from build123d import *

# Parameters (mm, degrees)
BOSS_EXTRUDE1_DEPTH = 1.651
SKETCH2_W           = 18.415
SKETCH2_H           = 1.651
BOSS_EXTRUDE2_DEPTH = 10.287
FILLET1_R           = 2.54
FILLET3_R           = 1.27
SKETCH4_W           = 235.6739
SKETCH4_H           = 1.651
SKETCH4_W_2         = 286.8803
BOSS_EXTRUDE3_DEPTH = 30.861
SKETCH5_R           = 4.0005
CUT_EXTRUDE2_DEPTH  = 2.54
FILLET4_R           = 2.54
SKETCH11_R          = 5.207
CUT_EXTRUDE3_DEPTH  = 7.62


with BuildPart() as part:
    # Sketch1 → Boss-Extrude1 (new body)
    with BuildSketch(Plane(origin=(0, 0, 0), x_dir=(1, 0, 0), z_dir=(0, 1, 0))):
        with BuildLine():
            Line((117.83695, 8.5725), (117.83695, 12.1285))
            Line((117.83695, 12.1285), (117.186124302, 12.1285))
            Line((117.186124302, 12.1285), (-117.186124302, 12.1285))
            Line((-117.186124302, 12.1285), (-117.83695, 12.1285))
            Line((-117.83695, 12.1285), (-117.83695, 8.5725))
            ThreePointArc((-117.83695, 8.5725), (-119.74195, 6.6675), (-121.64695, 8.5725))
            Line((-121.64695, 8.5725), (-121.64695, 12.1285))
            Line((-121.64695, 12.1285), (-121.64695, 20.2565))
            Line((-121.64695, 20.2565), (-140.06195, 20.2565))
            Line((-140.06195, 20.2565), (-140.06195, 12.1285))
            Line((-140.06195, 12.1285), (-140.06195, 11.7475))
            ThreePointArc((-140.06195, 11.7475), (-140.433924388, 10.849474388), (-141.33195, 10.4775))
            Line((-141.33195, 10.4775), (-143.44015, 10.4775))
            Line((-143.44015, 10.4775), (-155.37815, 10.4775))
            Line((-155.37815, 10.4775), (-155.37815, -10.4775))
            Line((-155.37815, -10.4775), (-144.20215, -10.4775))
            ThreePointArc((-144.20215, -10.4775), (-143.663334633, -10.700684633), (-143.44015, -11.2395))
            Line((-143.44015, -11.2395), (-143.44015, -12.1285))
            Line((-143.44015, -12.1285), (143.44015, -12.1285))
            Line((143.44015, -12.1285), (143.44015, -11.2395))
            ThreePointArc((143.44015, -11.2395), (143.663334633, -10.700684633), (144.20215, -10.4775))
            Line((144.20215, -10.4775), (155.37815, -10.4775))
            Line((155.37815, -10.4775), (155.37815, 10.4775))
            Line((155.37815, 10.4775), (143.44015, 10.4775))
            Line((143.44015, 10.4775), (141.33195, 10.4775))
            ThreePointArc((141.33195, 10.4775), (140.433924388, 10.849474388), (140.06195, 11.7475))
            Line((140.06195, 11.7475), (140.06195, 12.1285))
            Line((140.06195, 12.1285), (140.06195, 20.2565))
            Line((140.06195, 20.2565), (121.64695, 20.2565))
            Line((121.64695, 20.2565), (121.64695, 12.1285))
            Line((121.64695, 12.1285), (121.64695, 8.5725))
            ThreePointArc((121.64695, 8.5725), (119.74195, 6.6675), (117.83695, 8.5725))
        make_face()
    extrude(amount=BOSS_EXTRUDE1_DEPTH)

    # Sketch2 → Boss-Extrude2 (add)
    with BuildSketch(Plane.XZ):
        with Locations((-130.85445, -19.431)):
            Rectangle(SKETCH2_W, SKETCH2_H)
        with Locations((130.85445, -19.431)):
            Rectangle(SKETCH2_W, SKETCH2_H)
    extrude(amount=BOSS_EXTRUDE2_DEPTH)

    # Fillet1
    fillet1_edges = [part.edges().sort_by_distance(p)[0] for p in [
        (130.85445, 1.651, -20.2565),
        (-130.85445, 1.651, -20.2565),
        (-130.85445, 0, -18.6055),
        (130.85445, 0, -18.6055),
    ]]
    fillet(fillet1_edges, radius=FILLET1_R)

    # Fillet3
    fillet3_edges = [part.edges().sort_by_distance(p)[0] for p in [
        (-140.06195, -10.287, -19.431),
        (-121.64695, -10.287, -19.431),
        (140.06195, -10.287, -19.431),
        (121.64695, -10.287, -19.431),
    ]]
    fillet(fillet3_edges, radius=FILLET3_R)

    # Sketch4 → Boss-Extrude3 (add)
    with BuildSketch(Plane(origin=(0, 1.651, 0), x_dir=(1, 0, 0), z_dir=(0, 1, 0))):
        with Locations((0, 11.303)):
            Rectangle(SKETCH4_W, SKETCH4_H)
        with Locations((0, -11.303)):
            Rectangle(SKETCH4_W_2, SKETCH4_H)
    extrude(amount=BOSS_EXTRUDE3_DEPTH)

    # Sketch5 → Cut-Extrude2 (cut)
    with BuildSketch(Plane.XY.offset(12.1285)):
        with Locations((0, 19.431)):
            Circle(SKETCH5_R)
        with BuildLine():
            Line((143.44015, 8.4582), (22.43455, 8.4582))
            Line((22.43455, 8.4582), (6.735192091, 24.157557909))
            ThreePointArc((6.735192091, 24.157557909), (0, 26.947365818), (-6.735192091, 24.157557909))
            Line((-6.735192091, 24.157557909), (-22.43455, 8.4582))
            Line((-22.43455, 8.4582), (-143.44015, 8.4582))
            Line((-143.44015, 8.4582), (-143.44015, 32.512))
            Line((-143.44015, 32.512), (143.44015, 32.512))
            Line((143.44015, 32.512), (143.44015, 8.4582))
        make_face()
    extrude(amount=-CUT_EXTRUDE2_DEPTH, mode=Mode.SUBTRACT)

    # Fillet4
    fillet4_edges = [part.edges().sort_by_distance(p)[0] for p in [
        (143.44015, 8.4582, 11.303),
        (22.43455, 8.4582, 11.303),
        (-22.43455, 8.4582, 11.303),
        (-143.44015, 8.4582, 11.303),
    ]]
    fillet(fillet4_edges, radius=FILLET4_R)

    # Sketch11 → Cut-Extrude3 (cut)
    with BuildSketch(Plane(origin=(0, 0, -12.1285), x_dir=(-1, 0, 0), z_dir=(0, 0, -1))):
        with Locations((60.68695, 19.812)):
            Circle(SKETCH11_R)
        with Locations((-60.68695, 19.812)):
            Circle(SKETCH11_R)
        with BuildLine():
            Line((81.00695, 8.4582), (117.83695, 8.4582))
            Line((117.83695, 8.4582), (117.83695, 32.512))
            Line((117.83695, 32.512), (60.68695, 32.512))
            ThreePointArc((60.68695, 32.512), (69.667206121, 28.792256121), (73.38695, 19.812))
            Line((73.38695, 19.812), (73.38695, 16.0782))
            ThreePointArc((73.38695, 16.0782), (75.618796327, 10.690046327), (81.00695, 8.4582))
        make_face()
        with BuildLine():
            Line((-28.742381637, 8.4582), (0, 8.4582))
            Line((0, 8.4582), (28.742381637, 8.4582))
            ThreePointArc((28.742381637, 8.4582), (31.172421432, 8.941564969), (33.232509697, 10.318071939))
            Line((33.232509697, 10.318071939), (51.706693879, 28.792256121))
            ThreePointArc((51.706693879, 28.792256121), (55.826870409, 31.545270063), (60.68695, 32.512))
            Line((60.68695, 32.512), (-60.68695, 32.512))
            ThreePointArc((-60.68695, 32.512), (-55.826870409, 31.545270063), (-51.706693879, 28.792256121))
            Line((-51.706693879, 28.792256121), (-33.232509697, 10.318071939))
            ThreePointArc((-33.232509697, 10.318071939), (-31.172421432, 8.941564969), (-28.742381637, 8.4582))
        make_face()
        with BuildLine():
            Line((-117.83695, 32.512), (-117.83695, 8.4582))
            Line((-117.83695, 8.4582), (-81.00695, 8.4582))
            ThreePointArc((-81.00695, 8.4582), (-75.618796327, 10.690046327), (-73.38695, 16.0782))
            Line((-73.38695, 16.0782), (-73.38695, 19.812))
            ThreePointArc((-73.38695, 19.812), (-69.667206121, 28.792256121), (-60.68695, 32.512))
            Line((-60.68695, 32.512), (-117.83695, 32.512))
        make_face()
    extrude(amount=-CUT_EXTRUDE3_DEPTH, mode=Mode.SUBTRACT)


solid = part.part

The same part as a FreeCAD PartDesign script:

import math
import FreeCAD as App
import Part
import Sketcher
from FreeCAD import Vector
Q = App.Units.Quantity


def edges_at(feature, points):
    """Names of the edges that pass closest to the given points."""
    edges = feature.Shape.Edges
    near = lambda p: min(range(len(edges)), key=lambda i: edges[i].distToShape(Part.Vertex(*p))[0])
    return sorted({f"Edge{near(p) + 1}" for p in points})


def add_polygon(sketch, points):
    """Adds a closed chain of lines whose ends are joined by coincident constraints."""
    first, n = sketch.GeometryCount, len(points)
    for a, b in zip(points, points[1:] + points[:1]):
        sketch.addGeometry(Part.LineSegment(App.Vector(*a, 0), App.Vector(*b, 0)), False)
    for i in range(n):
        sketch.addConstraint(Sketcher.Constraint("Coincident", first + i, 2, first + (i + 1) % n, 1))

doc = App.newDocument("Part")
body = doc.addObject("PartDesign::Body", "Body")

sketch1 = body.newObject("Sketcher::SketchObject", "Sketch")
sketch1.AttachmentSupport = (doc.getObject("XZ_Plane"), [""])
sketch1.MapMode = "FlatFace"
sketch1.addGeometry([
    Part.LineSegment(Vector(117.83695, -8.5725, 0), Vector(117.83695, -12.1285, 0)),
    Part.LineSegment(Vector(117.83695, -12.1285, 0), Vector(-117.83695, -12.1285, 0)),
    Part.LineSegment(Vector(-117.83695, -12.1285, 0), Vector(-117.83695, -8.5725, 0)),
    Part.ArcOfCircle(Part.Circle(Vector(-119.74195, -8.5725, 0), Vector(0, 0, 1), 1.905), math.radians(0), math.radians(180)),
    Part.LineSegment(Vector(-121.64695, -8.5725, 0), Vector(-121.64695, -20.2565, 0)),
    Part.LineSegment(Vector(-121.64695, -20.2565, 0), Vector(-140.06195, -20.2565, 0)),
    Part.LineSegment(Vector(-140.06195, -20.2565, 0), Vector(-140.06195, -11.7475, 0)),
    Part.ArcOfCircle(Part.Circle(Vector(-141.33195, -11.7475, 0), Vector(0, 0, 1), 1.27), math.radians(0), math.radians(90)),
    Part.LineSegment(Vector(-141.33195, -10.4775, 0), Vector(-155.37815, -10.4775, 0)),
    Part.LineSegment(Vector(-155.37815, -10.4775, 0), Vector(-155.37815, 10.4775, 0)),
    Part.LineSegment(Vector(-155.37815, 10.4775, 0), Vector(-144.20215, 10.4775, 0)),
    Part.ArcOfCircle(Part.Circle(Vector(-144.20215, 11.2395, 0), Vector(0, 0, 1), 0.762), math.radians(-90), math.radians(0)),
    Part.LineSegment(Vector(-143.44015, 11.2395, 0), Vector(-143.44015, 12.1285, 0)),
    Part.LineSegment(Vector(-143.44015, 12.1285, 0), Vector(143.44015, 12.1285, 0)),
    Part.LineSegment(Vector(143.44015, 12.1285, 0), Vector(143.44015, 11.2395, 0)),
    Part.ArcOfCircle(Part.Circle(Vector(144.20215, 11.2395, 0), Vector(0, 0, 1), 0.762), math.radians(-180), math.radians(-90)),
    Part.LineSegment(Vector(144.20215, 10.4775, 0), Vector(155.37815, 10.4775, 0)),
    Part.LineSegment(Vector(155.37815, 10.4775, 0), Vector(155.37815, -10.4775, 0)),
    Part.LineSegment(Vector(155.37815, -10.4775, 0), Vector(141.33195, -10.4775, 0)),
    Part.ArcOfCircle(Part.Circle(Vector(141.33195, -11.7475, 0), Vector(0, 0, 1), 1.27), math.radians(90), math.radians(180)),
    Part.LineSegment(Vector(140.06195, -11.7475, 0), Vector(140.06195, -20.2565, 0)),
    Part.LineSegment(Vector(140.06195, -20.2565, 0), Vector(121.64695, -20.2565, 0)),
    Part.LineSegment(Vector(121.64695, -20.2565, 0), Vector(121.64695, -8.5725, 0)),
    Part.ArcOfCircle(Part.Circle(Vector(119.74195, -8.5725, 0), Vector(0, 0, 1), 1.905), math.radians(0), math.radians(180)),
], False)
sketch1.addConstraint([
    Sketcher.Constraint("Coincident", 0, 2, 1, 1),
    Sketcher.Constraint("Coincident", 1, 2, 2, 1),
    Sketcher.Constraint("Tangent", 2, 2, 3, 1),
    Sketcher.Constraint("Tangent", 3, 2, 4, 1),
    Sketcher.Constraint("Coincident", 4, 2, 5, 1),
    Sketcher.Constraint("Coincident", 5, 2, 6, 1),
    Sketcher.Constraint("Tangent", 6, 2, 7, 1),
    Sketcher.Constraint("Tangent", 7, 2, 8, 1),
    Sketcher.Constraint("Coincident", 8, 2, 9, 1),
    Sketcher.Constraint("Coincident", 9, 2, 10, 1),
    Sketcher.Constraint("Tangent", 10, 2, 11, 1),
    Sketcher.Constraint("Tangent", 11, 2, 12, 1),
    Sketcher.Constraint("Coincident", 12, 2, 13, 1),
    Sketcher.Constraint("Coincident", 13, 2, 14, 1),
    Sketcher.Constraint("Tangent", 14, 2, 15, 1),
    Sketcher.Constraint("Tangent", 15, 2, 16, 1),
    Sketcher.Constraint("Coincident", 16, 2, 17, 1),
    Sketcher.Constraint("Coincident", 17, 2, 18, 1),
    Sketcher.Constraint("Tangent", 18, 2, 19, 1),
    Sketcher.Constraint("Tangent", 19, 2, 20, 1),
    Sketcher.Constraint("Coincident", 20, 2, 21, 1),
    Sketcher.Constraint("Coincident", 21, 2, 22, 1),
    Sketcher.Constraint("Tangent", 22, 2, 23, 1),
    Sketcher.Constraint("Tangent", 23, 2, 0, 1),
    Sketcher.Constraint("Vertical", 0),
    Sketcher.Constraint("Horizontal", 1),
    Sketcher.Constraint("Vertical", 2),
    Sketcher.Constraint("Vertical", 4),
    Sketcher.Constraint("Horizontal", 5),
    Sketcher.Constraint("Vertical", 6),
    Sketcher.Constraint("Horizontal", 8),
    Sketcher.Constraint("Vertical", 9),
    Sketcher.Constraint("Horizontal", 10),
    Sketcher.Constraint("Vertical", 12),
    Sketcher.Constraint("Horizontal", 13),
    Sketcher.Constraint("Vertical", 14),
    Sketcher.Constraint("Horizontal", 16),
    Sketcher.Constraint("Vertical", 17),
    Sketcher.Constraint("Horizontal", 18),
    Sketcher.Constraint("Vertical", 20),
    Sketcher.Constraint("Horizontal", 21),
    Sketcher.Constraint("Vertical", 22),
    Sketcher.Constraint("Equal", 11, 15),
    Sketcher.Constraint("Equal", 7, 19),
    Sketcher.Constraint("Equal", 3, 23),
    Sketcher.Constraint("Symmetric", 8, 2, 16, 2, -1, 1),
    Sketcher.Constraint("Symmetric", 11, 3, 15, 3, -2),
    Sketcher.Constraint("Symmetric", 7, 3, 19, 3, -2),
    Sketcher.Constraint("Symmetric", 3, 3, 23, 3, -2),
    Sketcher.Constraint("Horizontal", 5, 2, 20, 2),
    Sketcher.Constraint("Radius", 7, Q("0.05 in")),
    Sketcher.Constraint("Radius", 11, Q("0.03 in")),
    Sketcher.Constraint("Radius", 3, Q("0.075 in")),
    Sketcher.Constraint("DistanceX", 10, 1, 10, 2, Q("0.44 in")),
    Sketcher.Constraint("DistanceY", 0, 2, 0, 1, Q("0.14 in")),
    Sketcher.Constraint("DistanceY", 4, 2, 4, 1, Q("0.46 in")),
    Sketcher.Constraint("DistanceX", 5, 2, 3, 3, Q("0.8 in")),
    Sketcher.Constraint("DistanceX", 8, 2, 8, 1, Q("0.553 in")),
    Sketcher.Constraint("DistanceY", 6, 1, 6, 2, Q("0.335 in")),
    Sketcher.Constraint("DistanceY", 9, 1, 9, 2, Q("0.825 in")),
    Sketcher.Constraint("DistanceY", 12, 1, 12, 2, Q("0.035 in")),
    Sketcher.Constraint("DistanceX", 1, 2, 1, 1, Q("9.2785 in")),
])
pad1 = body.newObject("PartDesign::Pad", "Pad")
pad1.Profile = sketch1
pad1.Length = Q("0.065 in")
pad1.Reversed = True

sketch2 = body.newObject("Sketcher::SketchObject", "Sketch001")
sketch2.AttachmentSupport = (doc.getObject("XZ_Plane"), [""])
sketch2.MapMode = "FlatFace"
add_polygon(sketch2, [(-140.06195, -18.6055), (-140.06195, -20.2565), (-121.64695, -20.2565), (-121.64695, -18.6055)])
add_polygon(sketch2, [(121.64695, -18.6055), (121.64695, -20.2565), (140.06195, -20.2565), (140.06195, -18.6055)])
sketch2.addConstraint([
    Sketcher.Constraint("Vertical", 0),
    Sketcher.Constraint("Horizontal", 1),
    Sketcher.Constraint("Vertical", 2),
    Sketcher.Constraint("Horizontal", 3),
    Sketcher.Constraint("Vertical", 4),
    Sketcher.Constraint("Horizontal", 5),
    Sketcher.Constraint("Vertical", 6),
    Sketcher.Constraint("Horizontal", 7),
    Sketcher.Constraint("Symmetric", 1, 2, 4, 2, -2),
    Sketcher.Constraint("Symmetric", 3, 2, 6, 2, -2),
    Sketcher.Constraint("DistanceX", 1, 1, 1, 2, Q("0.725 in")),
    Sketcher.Constraint("DistanceY", 0, 2, 0, 1, Q("0.065 in")),
    Sketcher.Constraint("DistanceY", 0, 2, -1, 1, Q("0.7975 in")),
    Sketcher.Constraint("DistanceX", 1, 2, 4, 2, Q("9.5785 in")),
])
pad2 = body.newObject("PartDesign::Pad", "Pad001")
pad2.Profile = sketch2
pad2.Length = Q("0.405 in")
doc.recompute()

fillet = body.newObject("PartDesign::Fillet", "Fillet")
fillet.Base = (pad2, edges_at(pad2, [
    (130.854, 1.651, -20.256),
    (-130.854, 1.651, -20.256),
    (-130.854, 0, -18.605),
    (130.854, 0, -18.605),
]))
fillet.Radius = Q("0.1 in")
doc.recompute()

fillet2 = body.newObject("PartDesign::Fillet", "Fillet001")
fillet2.Base = (fillet, edges_at(fillet, [
    (-140.062, -10.287, -19.431),
    (-121.647, -10.287, -19.431),
    (140.062, -10.287, -19.431),
    (121.647, -10.287, -19.431),
]))
fillet2.Radius = Q("0.05 in")

sketch3 = body.newObject("Sketcher::SketchObject", "Sketch002")
sketch3.AttachmentSupport = (doc.getObject("XZ_Plane"), [""])
sketch3.MapMode = "FlatFace"
sketch3.AttachmentOffset = App.Placement(Vector(0, 0, -0.065 * 25.4), App.Rotation())
add_polygon(sketch3, [(-117.83695, -12.1285), (-117.83695, -10.4775), (117.83695, -10.4775), (117.83695, -12.1285)])
add_polygon(sketch3, [(-143.44015, 10.4775), (-143.44015, 12.1285), (143.44015, 12.1285), (143.44015, 10.4775)])
sketch3.addConstraint([
    Sketcher.Constraint("Vertical", 0),
    Sketcher.Constraint("Horizontal", 1),
    Sketcher.Constraint("Vertical", 2),
    Sketcher.Constraint("Horizontal", 3),
    Sketcher.Constraint("Vertical", 4),
    Sketcher.Constraint("Horizontal", 5),
    Sketcher.Constraint("Vertical", 6),
    Sketcher.Constraint("Horizontal", 7),
    Sketcher.Constraint("Equal", 2, 4),
    Sketcher.Constraint("DistanceY", 0, 1, 0, 2, Q("0.065 in")),
    Sketcher.Constraint("DistanceY", 0, 2, 4, 2, Q("0.89 in")),
    Sketcher.Constraint("DistanceX", 1, 1, 1, 2, Q("9.2785 in")),
    Sketcher.Constraint("DistanceX", 5, 1, 5, 2, Q("11.2945 in")),
    Sketcher.Constraint("DistanceX", 4, 2, 0, 2, Q("1.008 in")),
    Sketcher.Constraint("DistanceY", 0, 2, -1, 1, Q("0.4125 in")),
    Sketcher.Constraint("DistanceX", 0, 2, -1, 1, 117.83695),
])
pad3 = body.newObject("PartDesign::Pad", "Pad002")
pad3.Profile = sketch3
pad3.Length = Q("1.215 in")
pad3.Reversed = True

sketch4 = body.newObject("Sketcher::SketchObject", "Sketch003")
sketch4.AttachmentSupport = (doc.getObject("XY_Plane"), [""])
sketch4.MapMode = "FlatFace"
sketch4.AttachmentOffset = App.Placement(Vector(0, 0, 0.4775 * 25.4), App.Rotation())
sketch4.addGeometry([
    Part.Circle(Vector(0, 19.431, 0), Vector(0, 0, 1), 4.0005),
    Part.LineSegment(Vector(22.43455, 8.4582, 0), Vector(143.44015, 8.4582, 0)),
    Part.LineSegment(Vector(143.44015, 8.4582, 0), Vector(143.44015, 32.512, 0)),
    Part.LineSegment(Vector(143.44015, 32.512, 0), Vector(-143.44015, 32.512, 0)),
    Part.LineSegment(Vector(-143.44015, 32.512, 0), Vector(-143.44015, 8.4582, 0)),
    Part.LineSegment(Vector(-143.44015, 8.4582, 0), Vector(-22.43455, 8.4582, 0)),
    Part.LineSegment(Vector(-22.43455, 8.4582, 0), Vector(-6.735192, 24.157558, 0)),
    Part.ArcOfCircle(Part.Circle(Vector(0, 17.422366, 0), Vector(0, 0, 1), 9.525), math.radians(45), math.radians(135)),
    Part.LineSegment(Vector(6.735192, 24.157558, 0), Vector(22.43455, 8.4582, 0)),
], False)
sketch4.addConstraint([
    Sketcher.Constraint("Coincident", 1, 2, 2, 1),
    Sketcher.Constraint("Coincident", 2, 2, 3, 1),
    Sketcher.Constraint("Coincident", 3, 2, 4, 1),
    Sketcher.Constraint("Coincident", 4, 2, 5, 1),
    Sketcher.Constraint("Coincident", 5, 2, 6, 1),
    Sketcher.Constraint("Tangent", 6, 2, 7, 2),
    Sketcher.Constraint("Tangent", 7, 1, 8, 1),
    Sketcher.Constraint("Coincident", 8, 2, 1, 1),
    Sketcher.Constraint("Horizontal", 1),
    Sketcher.Constraint("Vertical", 2),
    Sketcher.Constraint("Horizontal", 3),
    Sketcher.Constraint("Vertical", 4),
    Sketcher.Constraint("Horizontal", 5),
    Sketcher.Constraint("Symmetric", 1, 2, 4, 2, -2),
    Sketcher.Constraint("Symmetric", 6, 2, 7, 1, -2),
    Sketcher.Constraint("PointOnObject", 0, 3, -2),
    Sketcher.Constraint("Perpendicular", 6, 8),
    Sketcher.Constraint("Diameter", 0, Q("0.315 in")),
    Sketcher.Constraint("Radius", 7, Q("0.375 in")),
    Sketcher.Constraint("DistanceX", 1, 1, 1, 2, Q("4.764 in")),
    Sketcher.Constraint("DistanceY", 2, 1, 2, 2, Q("0.947 in")),
    Sketcher.Constraint("DistanceY", -1, 1, 2, 2, Q("1.28 in")),
    Sketcher.Constraint("DistanceX", 3, 2, 3, 1, Q("11.2945 in")),
    Sketcher.Constraint("DistanceY", -1, 1, 0, 3, Q("0.765 in")),
])
pocket1 = body.newObject("PartDesign::Pocket", "Pocket")
pocket1.Profile = sketch4
pocket1.Length = Q("0.1 in")
doc.recompute()

fillet3 = body.newObject("PartDesign::Fillet", "Fillet002")
fillet3.Base = (pocket1, edges_at(pocket1, [
    (143.44, 8.458, 11.303),
    (22.435, 8.458, 11.303),
    (-22.435, 8.458, 11.303),
    (-143.44, 8.458, 11.303),
]))
fillet3.Radius = Q("0.1 in")

sketch5 = body.newObject("Sketcher::SketchObject", "Sketch004")
sketch5.AttachmentSupport = (doc.getObject("XY_Plane"), [""])
sketch5.MapMode = "FlatFace"
sketch5.AttachmentOffset = App.Placement(Vector(0, 0, -0.4775 * 25.4), App.Rotation())
sketch5.addGeometry([
    Part.Circle(Vector(-60.68695, 19.812, 0), Vector(0, 0, 1), 5.207),
    Part.Circle(Vector(60.68695, 19.812, 0), Vector(0, 0, 1), 5.207),
    Part.LineSegment(Vector(-81.00695, 8.4582, 0), Vector(-117.83695, 8.4582, 0)),
    Part.LineSegment(Vector(-117.83695, 8.4582, 0), Vector(-117.83695, 32.512, 0)),
    Part.LineSegment(Vector(-117.83695, 32.512, 0), Vector(-60.68695, 32.512, 0)),
    Part.ArcOfCircle(Part.Circle(Vector(-60.68695, 19.812, 0), Vector(0, 0, 1), 12.7), math.radians(90), math.radians(180)),
    Part.LineSegment(Vector(-73.38695, 19.812, 0), Vector(-73.38695, 16.0782, 0)),
    Part.ArcOfCircle(Part.Circle(Vector(-81.00695, 16.0782, 0), Vector(0, 0, 1), 7.62), math.radians(-90), math.radians(0)),
    Part.LineSegment(Vector(28.742382, 8.4582, 0), Vector(-28.742382, 8.4582, 0)),
    Part.ArcOfCircle(Part.Circle(Vector(-28.742382, 14.8082, 0), Vector(0, 0, 1), 6.35), math.radians(-135), math.radians(-90)),
    Part.LineSegment(Vector(-33.23251, 10.318072, 0), Vector(-51.706694, 28.792256, 0)),
    Part.ArcOfCircle(Part.Circle(Vector(-60.68695, 19.812, 0), Vector(0, 0, 1), 12.7), math.radians(45), math.radians(90)),
    Part.LineSegment(Vector(-60.68695, 32.512, 0), Vector(60.68695, 32.512, 0)),
    Part.ArcOfCircle(Part.Circle(Vector(60.68695, 19.812, 0), Vector(0, 0, 1), 12.7), math.radians(90), math.radians(135)),
    Part.LineSegment(Vector(51.706694, 28.792256, 0), Vector(33.23251, 10.318072, 0)),
    Part.ArcOfCircle(Part.Circle(Vector(28.742382, 14.8082, 0), Vector(0, 0, 1), 6.35), math.radians(-90), math.radians(-45)),
    Part.LineSegment(Vector(117.83695, 32.512, 0), Vector(117.83695, 8.4582, 0)),
    Part.LineSegment(Vector(117.83695, 8.4582, 0), Vector(81.00695, 8.4582, 0)),
    Part.ArcOfCircle(Part.Circle(Vector(81.00695, 16.0782, 0), Vector(0, 0, 1), 7.62), math.radians(180), math.radians(270)),
    Part.LineSegment(Vector(73.38695, 16.0782, 0), Vector(73.38695, 19.812, 0)),
    Part.ArcOfCircle(Part.Circle(Vector(60.68695, 19.812, 0), Vector(0, 0, 1), 12.7), math.radians(0), math.radians(90)),
    Part.LineSegment(Vector(60.68695, 32.512, 0), Vector(117.83695, 32.512, 0)),
], False)
sketch5.addConstraint([
    Sketcher.Constraint("Coincident", 2, 2, 3, 1),
    Sketcher.Constraint("Coincident", 3, 2, 4, 1),
    Sketcher.Constraint("Tangent", 4, 2, 5, 1),
    Sketcher.Constraint("Tangent", 5, 2, 6, 1),
    Sketcher.Constraint("Tangent", 6, 2, 7, 2),
    Sketcher.Constraint("Tangent", 7, 1, 2, 1),
    Sketcher.Constraint("Tangent", 8, 2, 9, 2),
    Sketcher.Constraint("Tangent", 9, 1, 10, 1),
    Sketcher.Constraint("Tangent", 10, 2, 11, 1),
    Sketcher.Constraint("Tangent", 11, 2, 12, 1),
    Sketcher.Constraint("Tangent", 12, 2, 13, 1),
    Sketcher.Constraint("Tangent", 13, 2, 14, 1),
    Sketcher.Constraint("Tangent", 14, 2, 15, 2),
    Sketcher.Constraint("Tangent", 15, 1, 8, 1),
    Sketcher.Constraint("Coincident", 16, 2, 17, 1),
    Sketcher.Constraint("Tangent", 17, 2, 18, 2),
    Sketcher.Constraint("Tangent", 18, 1, 19, 1),
    Sketcher.Constraint("Tangent", 19, 2, 20, 1),
    Sketcher.Constraint("Tangent", 20, 2, 21, 1),
    Sketcher.Constraint("Coincident", 21, 2, 16, 1),
    Sketcher.Constraint("Horizontal", 2),
    Sketcher.Constraint("Vertical", 3),
    Sketcher.Constraint("Horizontal", 4),
    Sketcher.Constraint("Vertical", 6),
    Sketcher.Constraint("Horizontal", 8),
    Sketcher.Constraint("Horizontal", 12),
    Sketcher.Constraint("Vertical", 16),
    Sketcher.Constraint("Horizontal", 17),
    Sketcher.Constraint("Vertical", 19),
    Sketcher.Constraint("Horizontal", 21),
    Sketcher.Constraint("Coincident", 5, 3, 0, 3),
    Sketcher.Constraint("Coincident", 11, 3, 0, 3),
    Sketcher.Constraint("Coincident", 13, 3, 1, 3),
    Sketcher.Constraint("Coincident", 20, 3, 1, 3),
    Sketcher.Constraint("Equal", 0, 1),
    Sketcher.Constraint("Equal", 5, 11),
    Sketcher.Constraint("Equal", 11, 13),
    Sketcher.Constraint("Equal", 9, 15),
    Sketcher.Constraint("Equal", 7, 18),
    Sketcher.Constraint("Equal", 13, 20),
    Sketcher.Constraint("Symmetric", 7, 3, 18, 3, -2),
    Sketcher.Constraint("Perpendicular", 10, 14),
    Sketcher.Constraint("Horizontal", 7, 1, 8, 2),
    Sketcher.Constraint("Horizontal", 10, 2, 13, 2),
    Sketcher.Constraint("Equal", 2, 17),
    Sketcher.Constraint("Radius", 5, Q("0.5 in")),
    Sketcher.Constraint("Radius", 7, Q("0.3 in")),
    Sketcher.Constraint("Diameter", 0, Q("0.41 in")),
    Sketcher.Constraint("Radius", 9, Q("0.25 in")),
    Sketcher.Constraint("DistanceX", 2, 2, 2, 1, Q("1.45 in")),
    Sketcher.Constraint("DistanceY", 3, 1, 3, 2, Q("0.947 in")),
    Sketcher.Constraint("DistanceY", -1, 1, 0, 3, Q("0.78 in")),
    Sketcher.Constraint("DistanceX", 12, 1, 12, 2, Q("4.7785 in")),
])
pocket2 = body.newObject("PartDesign::Pocket", "Pocket001")
pocket2.Profile = sketch5
pocket2.Length = Q("0.3 in")
pocket2.Reversed = True

doc.recompute()
